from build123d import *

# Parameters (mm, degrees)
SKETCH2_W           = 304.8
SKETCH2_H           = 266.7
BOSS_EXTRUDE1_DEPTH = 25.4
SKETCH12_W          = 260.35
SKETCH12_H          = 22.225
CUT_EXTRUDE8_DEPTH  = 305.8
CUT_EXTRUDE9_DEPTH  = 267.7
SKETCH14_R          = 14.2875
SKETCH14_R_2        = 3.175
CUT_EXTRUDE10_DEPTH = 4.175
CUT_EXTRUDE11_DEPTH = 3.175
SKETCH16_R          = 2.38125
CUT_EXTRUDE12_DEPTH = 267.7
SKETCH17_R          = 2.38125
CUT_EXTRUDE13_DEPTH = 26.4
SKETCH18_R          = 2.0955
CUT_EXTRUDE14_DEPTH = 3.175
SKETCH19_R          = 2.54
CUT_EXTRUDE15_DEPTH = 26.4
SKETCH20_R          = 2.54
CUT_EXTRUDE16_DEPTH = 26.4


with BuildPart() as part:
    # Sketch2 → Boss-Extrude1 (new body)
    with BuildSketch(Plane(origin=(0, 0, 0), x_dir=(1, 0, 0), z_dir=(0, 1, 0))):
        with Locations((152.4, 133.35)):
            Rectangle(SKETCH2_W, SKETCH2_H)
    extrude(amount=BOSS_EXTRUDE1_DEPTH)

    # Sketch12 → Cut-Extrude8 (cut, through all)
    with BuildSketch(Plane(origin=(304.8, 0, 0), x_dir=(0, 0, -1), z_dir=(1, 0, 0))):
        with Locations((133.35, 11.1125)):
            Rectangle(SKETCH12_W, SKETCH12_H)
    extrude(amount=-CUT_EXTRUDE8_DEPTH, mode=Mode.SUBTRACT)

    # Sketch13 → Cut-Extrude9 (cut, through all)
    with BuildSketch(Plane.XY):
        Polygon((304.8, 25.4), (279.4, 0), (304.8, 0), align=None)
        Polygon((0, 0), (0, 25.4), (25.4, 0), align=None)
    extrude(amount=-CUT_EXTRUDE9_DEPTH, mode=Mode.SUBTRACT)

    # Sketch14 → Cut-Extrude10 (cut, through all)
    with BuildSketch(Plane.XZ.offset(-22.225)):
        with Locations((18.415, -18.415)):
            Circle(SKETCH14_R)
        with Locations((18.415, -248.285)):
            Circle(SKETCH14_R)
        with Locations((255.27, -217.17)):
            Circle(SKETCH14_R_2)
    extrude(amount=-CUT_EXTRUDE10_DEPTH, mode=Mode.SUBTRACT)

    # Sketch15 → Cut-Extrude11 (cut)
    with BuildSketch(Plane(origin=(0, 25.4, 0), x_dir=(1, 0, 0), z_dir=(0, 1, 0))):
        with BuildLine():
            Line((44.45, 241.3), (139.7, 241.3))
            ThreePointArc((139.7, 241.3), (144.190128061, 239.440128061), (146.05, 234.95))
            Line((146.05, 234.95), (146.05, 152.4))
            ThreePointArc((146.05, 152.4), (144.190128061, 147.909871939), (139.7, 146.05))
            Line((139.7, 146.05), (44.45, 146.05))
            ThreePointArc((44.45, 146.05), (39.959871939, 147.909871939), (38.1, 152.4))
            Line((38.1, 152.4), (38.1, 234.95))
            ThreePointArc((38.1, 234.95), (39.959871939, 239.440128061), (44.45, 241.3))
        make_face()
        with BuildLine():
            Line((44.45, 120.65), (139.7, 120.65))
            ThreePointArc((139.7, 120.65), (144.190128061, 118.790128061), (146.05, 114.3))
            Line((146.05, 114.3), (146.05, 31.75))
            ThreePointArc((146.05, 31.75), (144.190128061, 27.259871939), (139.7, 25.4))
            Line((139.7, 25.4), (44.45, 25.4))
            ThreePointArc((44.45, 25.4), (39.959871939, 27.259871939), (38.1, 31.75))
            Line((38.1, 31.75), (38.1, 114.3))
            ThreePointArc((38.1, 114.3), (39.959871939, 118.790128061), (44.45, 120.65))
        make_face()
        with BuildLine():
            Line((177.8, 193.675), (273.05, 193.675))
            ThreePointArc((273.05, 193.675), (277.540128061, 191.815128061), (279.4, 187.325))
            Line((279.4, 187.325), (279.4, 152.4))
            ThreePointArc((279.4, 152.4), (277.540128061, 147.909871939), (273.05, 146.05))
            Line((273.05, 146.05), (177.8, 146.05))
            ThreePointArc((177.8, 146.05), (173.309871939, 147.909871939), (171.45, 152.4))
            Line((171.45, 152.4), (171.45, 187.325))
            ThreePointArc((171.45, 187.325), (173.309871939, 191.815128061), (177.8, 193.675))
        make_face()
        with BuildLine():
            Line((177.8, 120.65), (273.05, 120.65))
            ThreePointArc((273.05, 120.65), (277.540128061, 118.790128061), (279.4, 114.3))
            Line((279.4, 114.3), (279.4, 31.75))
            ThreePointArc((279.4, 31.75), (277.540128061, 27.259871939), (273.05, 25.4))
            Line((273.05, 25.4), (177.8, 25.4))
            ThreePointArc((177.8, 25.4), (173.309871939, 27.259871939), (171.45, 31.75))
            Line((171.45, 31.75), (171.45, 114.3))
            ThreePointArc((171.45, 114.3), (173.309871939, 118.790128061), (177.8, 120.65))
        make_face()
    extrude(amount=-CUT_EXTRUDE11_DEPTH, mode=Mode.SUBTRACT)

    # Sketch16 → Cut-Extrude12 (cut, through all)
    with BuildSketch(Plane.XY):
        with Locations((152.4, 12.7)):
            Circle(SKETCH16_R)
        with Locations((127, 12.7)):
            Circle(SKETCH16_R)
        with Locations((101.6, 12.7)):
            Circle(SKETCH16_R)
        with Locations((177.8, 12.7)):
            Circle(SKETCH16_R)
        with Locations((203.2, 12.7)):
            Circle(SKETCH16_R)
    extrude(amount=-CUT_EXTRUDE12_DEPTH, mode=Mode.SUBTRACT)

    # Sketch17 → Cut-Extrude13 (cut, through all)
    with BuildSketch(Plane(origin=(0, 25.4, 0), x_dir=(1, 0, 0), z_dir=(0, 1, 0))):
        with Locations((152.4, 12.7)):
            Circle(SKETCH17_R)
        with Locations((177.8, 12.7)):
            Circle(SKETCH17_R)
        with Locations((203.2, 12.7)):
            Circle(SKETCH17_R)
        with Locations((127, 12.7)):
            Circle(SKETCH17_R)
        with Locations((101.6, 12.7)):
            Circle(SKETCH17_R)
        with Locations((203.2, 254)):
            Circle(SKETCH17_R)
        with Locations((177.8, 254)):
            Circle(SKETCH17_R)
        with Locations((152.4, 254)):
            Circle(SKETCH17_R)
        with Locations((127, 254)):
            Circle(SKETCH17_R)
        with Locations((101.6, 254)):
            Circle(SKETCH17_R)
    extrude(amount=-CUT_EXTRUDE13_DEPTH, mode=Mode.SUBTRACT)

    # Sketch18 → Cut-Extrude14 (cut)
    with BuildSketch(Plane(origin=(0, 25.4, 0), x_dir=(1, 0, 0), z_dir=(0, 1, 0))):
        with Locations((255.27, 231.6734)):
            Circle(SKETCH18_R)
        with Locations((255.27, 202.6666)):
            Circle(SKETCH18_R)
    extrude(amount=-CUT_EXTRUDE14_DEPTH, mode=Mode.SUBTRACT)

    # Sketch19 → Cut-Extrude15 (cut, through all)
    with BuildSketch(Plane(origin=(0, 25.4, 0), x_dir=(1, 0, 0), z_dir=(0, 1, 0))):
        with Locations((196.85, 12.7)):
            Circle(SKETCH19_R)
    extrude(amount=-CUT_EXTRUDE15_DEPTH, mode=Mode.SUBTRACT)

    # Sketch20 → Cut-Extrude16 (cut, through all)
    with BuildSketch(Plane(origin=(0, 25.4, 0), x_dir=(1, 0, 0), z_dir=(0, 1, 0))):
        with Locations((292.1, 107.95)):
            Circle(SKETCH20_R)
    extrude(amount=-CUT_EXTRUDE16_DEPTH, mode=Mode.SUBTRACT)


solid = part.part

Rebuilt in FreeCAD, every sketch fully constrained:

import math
import FreeCAD as App
import Part
import Sketcher

V = App.Vector
Q = App.Units.Quantity


def add_polygon(sketch, points):
    """Adds a closed chain of lines whose ends are joined by coincident constraints."""
    first, n = sketch.GeometryCount, len(points)
    for a, b in zip(points, points[1:] + points[:1]):
        sketch.addGeometry(Part.LineSegment(App.Vector(*a, 0), App.Vector(*b, 0)), False)
    for i in range(n):
        sketch.addConstraint(Sketcher.Constraint("Coincident", first + i, 2, first + (i + 1) % n, 1))

doc = App.newDocument("Part")
body = doc.addObject("PartDesign::Body", "Body")

# Sketch on XZ plane
sketch1 = body.newObject("Sketcher::SketchObject", "Sketch")
sketch1.AttachmentSupport = (doc.getObject("XZ_Plane"), [""])
sketch1.MapMode = "FlatFace"
add_polygon(sketch1, [(0, -267), (0, 0), (305, 0), (305, -267)])  # lines 0-3
sketch1.addConstraint(Sketcher.Constraint("Vertical", 0))
sketch1.addConstraint(Sketcher.Constraint("Horizontal", 1))
sketch1.addConstraint(Sketcher.Constraint("Vertical", 2))
sketch1.addConstraint(Sketcher.Constraint("Horizontal", 3))
sketch1.addConstraint(Sketcher.Constraint("Coincident", 0, 2, -1, 1))
sketch1.addConstraint(Sketcher.Constraint("DistanceX", 1, 1, 1, 2, Q("12 in")))
sketch1.addConstraint(Sketcher.Constraint("DistanceY", 0, 1, 0, 2, Q("10.5 in")))
pad1 = body.newObject("PartDesign::Pad", "Pad")
pad1.Profile = sketch1
pad1.Length = Q("1 in")
pad1.Reversed = True

# Sketch on YZ plane
sketch2 = body.newObject("Sketcher::SketchObject", "Sketch001")
sketch2.AttachmentSupport = (doc.getObject("YZ_Plane"), [""])
sketch2.MapMode = "FlatFace"
sketch2.AttachmentOffset = App.Placement(V(0, 0, 12 * 25.4), App.Rotation())
add_polygon(sketch2, [(22, -3), (0, -3), (0, -264), (22, -264)])  # lines 0-3
sketch2.addConstraint(Sketcher.Constraint("Horizontal", 0))
sketch2.addConstraint(Sketcher.Constraint("Vertical", 1))
sketch2.addConstraint(Sketcher.Constraint("Horizontal", 2))
sketch2.addConstraint(Sketcher.Constraint("Vertical", 3))
sketch2.addConstraint(Sketcher.Constraint("PointOnObject", 0, 2, -2))
sketch2.addConstraint(Sketcher.Constraint("DistanceY", 1, 2, 1, 1, Q("10.25 in")))
sketch2.addConstraint(Sketcher.Constraint("DistanceX", 0, 2, 0, 1, Q("0.875 in")))
sketch2.addConstraint(Sketcher.Constraint("DistanceY", 0, 2, -1, 1, Q("0.125 in")))
pocket1 = body.newObject("PartDesign::Pocket", "Pocket")
pocket1.Profile = sketch2
pocket1.Type = "ThroughAll"

# Sketch on XY plane
sketch3 = body.newObject("Sketcher::SketchObject", "Sketch002")
sketch3.AttachmentSupport = (doc.getObject("XY_Plane"), [""])
sketch3.MapMode = "FlatFace"
add_polygon(sketch3, [(305, 25), (279, 0), (305, 0)])  # lines 0-2
add_polygon(sketch3, [(0, 25), (0, 0), (25, 0)])  # lines 3-5
sketch3.addConstraint(Sketcher.Constraint("Horizontal", 1))
sketch3.addConstraint(Sketcher.Constraint("Vertical", 2))
sketch3.addConstraint(Sketcher.Constraint("Vertical", 3))
sketch3.addConstraint(Sketcher.Constraint("Horizontal", 4))
sketch3.addConstraint(Sketcher.Constraint("Coincident", 3, 2, -1, 1))
sketch3.addConstraint(Sketcher.Constraint("PointOnObject", 0, 2, -1))
sketch3.addConstraint(Sketcher.Constraint("Perpendicular", 0, 5))
sketch3.addConstraint(Sketcher.Constraint("Horizontal", 2, 2, 5, 2))
sketch3.addConstraint(Sketcher.Constraint("Equal", 1, 4))
sketch3.addConstraint(Sketcher.Constraint("DistanceX", 1, 1, 1, 2, Q("1 in")))
sketch3.addConstraint(Sketcher.Constraint("DistanceX", -1, 1, 0, 2, Q("11 in")))
pocket2 = body.newObject("PartDesign::Pocket", "Pocket001")
pocket2.Profile = sketch3
pocket2.Type = "ThroughAll"

# Sketch on XZ plane
sketch4 = body.newObject("Sketcher::SketchObject", "Sketch003")
sketch4.AttachmentSupport = (doc.getObject("XZ_Plane"), [""])
sketch4.MapMode = "FlatFace"
sketch4.AttachmentOffset = App.Placement(V(0, 0, -0.875 * 25.4), App.Rotation())
sketch4.addGeometry(Part.Circle(V(18.4, -18.4, 0), V(0, 0, 1), 14.3), False)
sketch4.addGeometry(Part.Circle(V(18.4, -248.3, 0), V(0, 0, 1), 14.3), False)
sketch4.addGeometry(Part.Circle(V(255.3, -217.2, 0), V(0, 0, 1), 3.2), False)
sketch4.addConstraint(Sketcher.Constraint("Equal", 0, 1))
sketch4.addConstraint(Sketcher.Constraint("Vertical", 0, 3, 1, 3))
sketch4.addConstraint(Sketcher.Constraint("Diameter", 2, Q("0.25 in")))
sketch4.addConstraint(Sketcher.Constraint("Diameter", 0, Q("1.125 in")))
sketch4.addConstraint(Sketcher.Constraint("DistanceX", -1, 1, 2, 3, Q("10.05 in")))
sketch4.addConstraint(Sketcher.Constraint("DistanceY", 2, 3, -1, 1, Q("8.55 in")))
sketch4.addConstraint(Sketcher.Constraint("DistanceY", 1, 3, 0, 3, Q("9.05 in")))
sketch4.addConstraint(Sketcher.Constraint("DistanceX", -1, 1, 0, 3, Q("0.725 in")))
sketch4.addConstraint(Sketcher.Constraint("DistanceY", 0, 3, -1, 1, Q("0.725 in")))
pocket3 = body.newObject("PartDesign::Pocket", "Pocket002")
pocket3.Profile = sketch4
pocket3.Type = "ThroughAll"

# Sketch on XZ plane
sketch5 = body.newObject("Sketcher::SketchObject", "Sketch004")
sketch5.AttachmentSupport = (doc.getObject("XZ_Plane"), [""])
sketch5.MapMode = "FlatFace"
sketch5.AttachmentOffset = App.Placement(V(0, 0, -1 * 25.4), App.Rotation())
sketch5.addGeometry(Part.LineSegment(V(140, -241, 0), V(44, -241, 0)), False)
sketch5.addGeometry(Part.ArcOfCircle(Part.Circle(V(44, -235, 0), V(0, 0, 1), 6), math.radians(180), math.radians(270)), False)
sketch5.addGeometry(Part.LineSegment(V(38, -235, 0), V(38, -152, 0)), False)
sketch5.addGeometry(Part.ArcOfCircle(Part.Circle(V(44, -152, 0), V(0, 0, 1), 6), math.radians(90), math.radians(180)), False)
sketch5.addGeometry(Part.LineSegment(V(44, -146, 0), V(140, -146, 0)), False)
sketch5.addGeometry(Part.ArcOfCircle(Part.Circle(V(140, -152, 0), V(0, 0, 1), 6), math.radians(0), math.radians(90)), False)
sketch5.addGeometry(Part.LineSegment(V(146, -152, 0), V(146, -235, 0)), False)
sketch5.addGeometry(Part.ArcOfCircle(Part.Circle(V(140, -235, 0), V(0, 0, 1), 6), math.radians(-90), math.radians(0)), False)
sketch5.addGeometry(Part.LineSegment(V(140, -121, 0), V(44, -121, 0)), False)
sketch5.addGeometry(Part.ArcOfCircle(Part.Circle(V(44, -114, 0), V(0, 0, 1), 6), math.radians(180), math.radians(270)), False)
sketch5.addGeometry(Part.LineSegment(V(38, -114, 0), V(38, -32, 0)), False)
sketch5.addGeometry(Part.ArcOfCircle(Part.Circle(V(44, -32, 0), V(0, 0, 1), 6), math.radians(90), math.radians(180)), False)
sketch5.addGeometry(Part.LineSegment(V(44, -25, 0), V(140, -25, 0)), False)
sketch5.addGeometry(Part.ArcOfCircle(Part.Circle(V(140, -32, 0), V(0, 0, 1), 6), math.radians(0), math.radians(90)), False)
sketch5.addGeometry(Part.LineSegment(V(146, -32, 0), V(146, -114, 0)), False)
sketch5.addGeometry(Part.ArcOfCircle(Part.Circle(V(140, -114, 0), V(0, 0, 1), 6), math.radians(-90), math.radians(0)), False)
sketch5.addGeometry(Part.LineSegment(V(273, -194, 0), V(178, -194, 0)), False)
sketch5.addGeometry(Part.ArcOfCircle(Part.Circle(V(178, -187, 0), V(0, 0, 1), 6), math.radians(180), math.radians(270)), False)
sketch5.addGeometry(Part.LineSegment(V(171, -187, 0), V(171, -152, 0)), False)
sketch5.addGeometry(Part.ArcOfCircle(Part.Circle(V(178, -152, 0), V(0, 0, 1), 6), math.radians(90), math.radians(180)), False)
sketch5.addGeometry(Part.LineSegment(V(178, -146, 0), V(273, -146, 0)), False)
sketch5.addGeometry(Part.ArcOfCircle(Part.Circle(V(273, -152, 0), V(0, 0, 1), 6), math.radians(0), math.radians(90)), False)
sketch5.addGeometry(Part.LineSegment(V(279, -152, 0), V(279, -187, 0)), False)
sketch5.addGeometry(Part.ArcOfCircle(Part.Circle(V(273, -187, 0), V(0, 0, 1), 6), math.radians(-90), math.radians(0)), False)
sketch5.addGeometry(Part.LineSegment(V(273, -121, 0), V(178, -121, 0)), False)
sketch5.addGeometry(Part.ArcOfCircle(Part.Circle(V(178, -114, 0), V(0, 0, 1), 6), math.radians(180), math.radians(270)), False)
sketch5.addGeometry(Part.LineSegment(V(171, -114, 0), V(171, -32, 0)), False)
sketch5.addGeometry(Part.ArcOfCircle(Part.Circle(V(178, -32, 0), V(0, 0, 1), 6), math.radians(90), math.radians(180)), False)
sketch5.addGeometry(Part.LineSegment(V(178, -25, 0), V(273, -25, 0)), False)
sketch5.addGeometry(Part.ArcOfCircle(Part.Circle(V(273, -32, 0), V(0, 0, 1), 6), math.radians(0), math.radians(90)), False)
sketch5.addGeometry(Part.LineSegment(V(279, -32, 0), V(279, -114, 0)), False)
sketch5.addGeometry(Part.ArcOfCircle(Part.Circle(V(273, -114, 0), V(0, 0, 1), 6), math.radians(-90), math.radians(0)), False)
sketch5.addConstraint(Sketcher.Constraint("Tangent", 0, 2, 1, 2))
sketch5.addConstraint(Sketcher.Constraint("Tangent", 1, 1, 2, 1))
sketch5.addConstraint(Sketcher.Constraint("Tangent", 2, 2, 3, 2))
sketch5.addConstraint(Sketcher.Constraint("Tangent", 3, 1, 4, 1))
sketch5.addConstraint(Sketcher.Constraint("Tangent", 4, 2, 5, 2))
sketch5.addConstraint(Sketcher.Constraint("Tangent", 5, 1, 6, 1))
sketch5.addConstraint(Sketcher.Constraint("Tangent", 6, 2, 7, 2))
sketch5.addConstraint(Sketcher.Constraint("Tangent", 7, 1, 0, 1))
sketch5.addConstraint(Sketcher.Constraint("Tangent", 8, 2, 9, 2))
sketch5.addConstraint(Sketcher.Constraint("Tangent", 9, 1, 10, 1))
sketch5.addConstraint(Sketcher.Constraint("Tangent", 10, 2, 11, 2))
sketch5.addConstraint(Sketcher.Constraint("Tangent", 11, 1, 12, 1))
sketch5.addConstraint(Sketcher.Constraint("Tangent", 12, 2, 13, 2))
sketch5.addConstraint(Sketcher.Constraint("Tangent", 13, 1, 14, 1))
sketch5.addConstraint(Sketcher.Constraint("Tangent", 14, 2, 15, 2))
sketch5.addConstraint(Sketcher.Constraint("Tangent", 15, 1, 8, 1))
sketch5.addConstraint(Sketcher.Constraint("Tangent", 16, 2, 17, 2))
sketch5.addConstraint(Sketcher.Constraint("Tangent", 17, 1, 18, 1))
sketch5.addConstraint(Sketcher.Constraint("Tangent", 18, 2, 19, 2))
sketch5.addConstraint(Sketcher.Constraint("Tangent", 19, 1, 20, 1))
sketch5.addConstraint(Sketcher.Constraint("Tangent", 20, 2, 21, 2))
sketch5.addConstraint(Sketcher.Constraint("Tangent", 21, 1, 22, 1))
sketch5.addConstraint(Sketcher.Constraint("Tangent", 22, 2, 23, 2))
sketch5.addConstraint(Sketcher.Constraint("Tangent", 23, 1, 16, 1))
sketch5.addConstraint(Sketcher.Constraint("Tangent", 24, 2, 25, 2))
sketch5.addConstraint(Sketcher.Constraint("Tangent", 25, 1, 26, 1))
sketch5.addConstraint(Sketcher.Constraint("Tangent", 26, 2, 27, 2))
sketch5.addConstraint(Sketcher.Constraint("Tangent", 27, 1, 28, 1))
sketch5.addConstraint(Sketcher.Constraint("Tangent", 28, 2, 29, 2))
sketch5.addConstraint(Sketcher.Constraint("Tangent", 29, 1, 30, 1))
sketch5.addConstraint(Sketcher.Constraint("Tangent", 30, 2, 31, 2))
sketch5.addConstraint(Sketcher.Constraint("Tangent", 31, 1, 24, 1))
sketch5.addConstraint(Sketcher.Constraint("Horizontal", 0))
sketch5.addConstraint(Sketcher.Constraint("Vertical", 2))
sketch5.addConstraint(Sketcher.Constraint("Horizontal", 4))
sketch5.addConstraint(Sketcher.Constraint("Vertical", 6))
sketch5.addConstraint(Sketcher.Constraint("Horizontal", 8))
sketch5.addConstraint(Sketcher.Constraint("Vertical", 10))
sketch5.addConstraint(Sketcher.Constraint("Horizontal", 12))
sketch5.addConstraint(Sketcher.Constraint("Vertical", 14))
sketch5.addConstraint(Sketcher.Constraint("Horizontal", 16))
sketch5.addConstraint(Sketcher.Constraint("Vertical", 18))
sketch5.addConstraint(Sketcher.Constraint("Horizontal", 20))
sketch5.addConstraint(Sketcher.Constraint("Vertical", 22))
sketch5.addConstraint(Sketcher.Constraint("Horizontal", 24))
sketch5.addConstraint(Sketcher.Constraint("Vertical", 26))
sketch5.addConstraint(Sketcher.Constraint("Horizontal", 28))
sketch5.addConstraint(Sketcher.Constraint("Vertical", 30))
sketch5.addConstraint(Sketcher.Constraint("Equal", 1, 3))
sketch5.addConstraint(Sketcher.Constraint("Equal", 3, 5))
sketch5.addConstraint(Sketcher.Constraint("Equal", 5, 7))
sketch5.addConstraint(Sketcher.Constraint("Equal", 7, 9))
sketch5.addConstraint(Sketcher.Constraint("Equal", 9, 11))
sketch5.addConstraint(Sketcher.Constraint("Equal", 11, 13))
sketch5.addConstraint(Sketcher.Constraint("Equal", 13, 15))
sketch5.addConstraint(Sketcher.Constraint("Equal", 15, 17))
sketch5.addConstraint(Sketcher.Constraint("Equal", 17, 19))
sketch5.addConstraint(Sketcher.Constraint("Equal", 19, 21))
sketch5.addConstraint(Sketcher.Constraint("Equal", 21, 23))
sketch5.addConstraint(Sketcher.Constraint("Equal", 23, 25))
sketch5.addConstraint(Sketcher.Constraint("Equal", 25, 27))
sketch5.addConstraint(Sketcher.Constraint("Equal", 27, 29))
sketch5.addConstraint(Sketcher.Constraint("Equal", 29, 31))
sketch5.addConstraint(Sketcher.Constraint("Horizontal", 5, 3, 19, 3))
sketch5.addConstraint(Sketcher.Constraint("Horizontal", 15, 3, 25, 3))
sketch5.addConstraint(Sketcher.Constraint("Horizontal", 13, 3, 27, 3))
sketch5.addConstraint(Sketcher.Constraint("Vertical", 3, 3, 9, 3))
sketch5.addConstraint(Sketcher.Constraint("Vertical", 7, 3, 13, 3))
sketch5.addConstraint(Sketcher.Constraint("Vertical", 19, 3, 25, 3))
sketch5.addConstraint(Sketcher.Constraint("Vertical", 23, 3, 29, 3))
sketch5.addConstraint(Sketcher.Constraint("Equal", 12, 16))
sketch5.addConstraint(Sketcher.Constraint("Equal", 6, 10))
sketch5.addConstraint(Sketcher.Constraint("Radius", 1, Q("0.25 in")))
sketch5.addConstraint(Sketcher.Constraint("DistanceY", 3, 3, -1, 1, Q("6 in")))
sketch5.addConstraint(Sketcher.Constraint("DistanceX", -1, 1, 17, 3, Q("7 in")))
sketch5.addConstraint(Sketcher.Constraint("DistanceY", 11, 1, -1, 1, Q("1 in")))
sketch5.addConstraint(Sketcher.Constraint("DistanceX", -1, 1, 21, 1, Q("11 in")))
sketch5.addConstraint(Sketcher.Constraint("DistanceY", 1, 3, 11, 3, Q("8 in")))
sketch5.addConstraint(Sketcher.Constraint("DistanceX", 5, 1, 17, 1, Q("1 in")))
sketch5.addConstraint(Sketcher.Constraint("DistanceY", 18, 1, 18, 2, Q("1.375 in")))
pocket4 = body.newObject("PartDesign::Pocket", "Pocket003")
pocket4.Profile = sketch5
pocket4.Length = Q("0.125 in")
pocket4.Reversed = True

# Sketch on XY plane
sketch6 = body.newObject("Sketcher::SketchObject", "Sketch005")
sketch6.AttachmentSupport = (doc.getObject("XY_Plane"), [""])
sketch6.MapMode = "FlatFace"
sketch6.addGeometry(Part.Circle(V(152.4, 12.7, 0), V(0, 0, 1), 2.4), False)
sketch6.addGeometry(Part.Circle(V(127, 12.7, 0), V(0, 0, 1), 2.4), False)
sketch6.addGeometry(Part.Circle(V(101.6, 12.7, 0), V(0, 0, 1), 2.4), False)
sketch6.addGeometry(Part.Circle(V(177.8, 12.7, 0), V(0, 0, 1), 2.4), False)
sketch6.addGeometry(Part.Circle(V(203.2, 12.7, 0), V(0, 0, 1), 2.4), False)
sketch6.addConstraint(Sketcher.Constraint("Equal", 0, 1))
sketch6.addConstraint(Sketcher.Constraint("Equal", 1, 2))
sketch6.addConstraint(Sketcher.Constraint("Equal", 2, 3))
sketch6.addConstraint(Sketcher.Constraint("Equal", 3, 4))
sketch6.addConstraint(Sketcher.Constraint("Horizontal", 0, 3, 1, 3))
sketch6.addConstraint(Sketcher.Constraint("Horizontal", 1, 3, 2, 3))
sketch6.addConstraint(Sketcher.Constraint("Horizontal", 2, 3, 3, 3))
sketch6.addConstraint(Sketcher.Constraint("Horizontal", 3, 3, 4, 3))
sketch6.addConstraint(Sketcher.Constraint("Diameter", 0, Q("0.1875 in")))
sketch6.addConstraint(Sketcher.Constraint("DistanceX", -1, 1, 0, 3, Q("6 in")))
sketch6.addConstraint(Sketcher.Constraint("DistanceX", -1, 1, 1, 3, Q("5 in")))
sketch6.addConstraint(Sketcher.Constraint("DistanceX", -1, 1, 2, 3, Q("4 in")))
sketch6.addConstraint(Sketcher.Constraint("DistanceX", -1, 1, 3, 3, Q("7 in")))
sketch6.addConstraint(Sketcher.Constraint("DistanceX", -1, 1, 4, 3, Q("8 in")))
sketch6.addConstraint(Sketcher.Constraint("DistanceY", -1, 1, 0, 3, Q("0.5 in")))
pocket5 = body.newObject("PartDesign::Pocket", "Pocket004")
pocket5.Profile = sketch6
pocket5.Type = "ThroughAll"

# Sketch on XZ plane
sketch7 = body.newObject("Sketcher::SketchObject", "Sketch006")
sketch7.AttachmentSupport = (doc.getObject("XZ_Plane"), [""])
sketch7.MapMode = "FlatFace"
sketch7.AttachmentOffset = App.Placement(V(0, 0, -1 * 25.4), App.Rotation())
sketch7.addGeometry(Part.Circle(V(152.4, -12.7, 0), V(0, 0, 1), 2.4), False)
sketch7.addGeometry(Part.Circle(V(177.8, -12.7, 0), V(0, 0, 1), 2.4), False)
sketch7.addGeometry(Part.Circle(V(203.2, -12.7, 0), V(0, 0, 1), 2.4), False)
sketch7.addGeometry(Part.Circle(V(127, -12.7, 0), V(0, 0, 1), 2.4), False)
sketch7.addGeometry(Part.Circle(V(101.6, -12.7, 0), V(0, 0, 1), 2.4), False)
sketch7.addGeometry(Part.Circle(V(203.2, -254, 0), V(0, 0, 1), 2.4), False)
sketch7.addGeometry(Part.Circle(V(177.8, -254, 0), V(0, 0, 1), 2.4), False)
sketch7.addGeometry(Part.Circle(V(152.4, -254, 0), V(0, 0, 1), 2.4), False)
sketch7.addGeometry(Part.Circle(V(127, -254, 0), V(0, 0, 1), 2.4), False)
sketch7.addGeometry(Part.Circle(V(101.6, -254, 0), V(0, 0, 1), 2.4), False)
sketch7.addConstraint(Sketcher.Constraint("Equal", 0, 1))
sketch7.addConstraint(Sketcher.Constraint("Equal", 1, 2))
sketch7.addConstraint(Sketcher.Constraint("Equal", 2, 3))
sketch7.addConstraint(Sketcher.Constraint("Equal", 3, 4))
sketch7.addConstraint(Sketcher.Constraint("Equal", 4, 5))
sketch7.addConstraint(Sketcher.Constraint("Equal", 5, 6))
sketch7.addConstraint(Sketcher.Constraint("Equal", 6, 7))
sketch7.addConstraint(Sketcher.Constraint("Equal", 7, 8))
sketch7.addConstraint(Sketcher.Constraint("Equal", 8, 9))
sketch7.addConstraint(Sketcher.Constraint("Horizontal", 0, 3, 1, 3))
sketch7.addConstraint(Sketcher.Constraint("Horizontal", 1, 3, 2, 3))
sketch7.addConstraint(Sketcher.Constraint("Horizontal", 2, 3, 3, 3))
sketch7.addConstraint(Sketcher.Constraint("Horizontal", 3, 3, 4, 3))
sketch7.addConstraint(Sketcher.Constraint("Horizontal", 5, 3, 6, 3))
sketch7.addConstraint(Sketcher.Constraint("Horizontal", 6, 3, 7, 3))
sketch7.addConstraint(Sketcher.Constraint("Horizontal", 7, 3, 8, 3))
sketch7.addConstraint(Sketcher.Constraint("Horizontal", 8, 3, 9, 3))
sketch7.addConstraint(Sketcher.Constraint("Vertical", 2, 3, 5, 3))
sketch7.addConstraint(Sketcher.Constraint("Vertical", 1, 3, 6, 3))
sketch7.addConstraint(Sketcher.Constraint("Vertical", 0, 3, 7, 3))
sketch7.addConstraint(Sketcher.Constraint("Vertical", 3, 3, 8, 3))
sketch7.addConstraint(Sketcher.Constraint("Vertical", 4, 3, 9, 3))
sketch7.addConstraint(Sketcher.Constraint("Diameter", 0, Q("0.1875 in")))
sketch7.addConstraint(Sketcher.Constraint("DistanceX", -1, 1, 0, 3, Q("6 in")))
sketch7.addConstraint(Sketcher.Constraint("DistanceX", -1, 1, 1, 3, Q("7 in")))
sketch7.addConstraint(Sketcher.Constraint("DistanceX", -1, 1, 2, 3, Q("8 in")))
sketch7.addConstraint(Sketcher.Constraint("DistanceX", -1, 1, 3, 3, Q("5 in")))
sketch7.addConstraint(Sketcher.Constraint("DistanceX", -1, 1, 4, 3, Q("4 in")))
sketch7.addConstraint(Sketcher.Constraint("DistanceY", 5, 3, -1, 1, Q("10 in")))
sketch7.addConstraint(Sketcher.Constraint("DistanceY", 0, 3, -1, 1, Q("0.5 in")))
pocket6 = body.newObject("PartDesign::Pocket", "Pocket005")
pocket6.Profile = sketch7
pocket6.Type = "ThroughAll"
pocket6.Reversed = True

# Sketch on XZ plane
sketch8 = body.newObject("Sketcher::SketchObject", "Sketch007")
sketch8.AttachmentSupport = (doc.getObject("XZ_Plane"), [""])
sketch8.MapMode = "FlatFace"
sketch8.AttachmentOffset = App.Placement(V(0, 0, -1 * 25.4), App.Rotation())
sketch8.addGeometry(Part.Circle(V(255.3, -231.7, 0), V(0, 0, 1), 2.1), False)
sketch8.addGeometry(Part.Circle(V(255.3, -202.7, 0), V(0, 0, 1), 2.1), False)
sketch8.addConstraint(Sketcher.Constraint("Equal", 0, 1))
sketch8.addConstraint(Sketcher.Constraint("Vertical", 0, 3, 1, 3))
sketch8.addConstraint(Sketcher.Constraint("Diameter", 0, Q("0.165 in")))
sketch8.addConstraint(Sketcher.Constraint("DistanceX", -1, 1, 0, 3, Q("10.05 in")))
sketch8.addConstraint(Sketcher.Constraint("DistanceY", 0, 3, -1, 1, Q("9.121 in")))
sketch8.addConstraint(Sketcher.Constraint("DistanceY", 1, 3, -1, 1, Q("7.979 in")))
pocket7 = body.newObject("PartDesign::Pocket", "Pocket006")
pocket7.Profile = sketch8
pocket7.Length = Q("0.125 in")
pocket7.Reversed = True

# Sketch on XZ plane
sketch9 = body.newObject("Sketcher::SketchObject", "Sketch008")
sketch9.AttachmentSupport = (doc.getObject("XZ_Plane"), [""])
sketch9.MapMode = "FlatFace"
sketch9.AttachmentOffset = App.Placement(V(0, 0, -1 * 25.4), App.Rotation())
sketch9.addGeometry(Part.Circle(V(196.8, -12.7, 0), V(0, 0, 1), 2.5), False)
sketch9.addConstraint(Sketcher.Constraint("Diameter", 0, Q("0.2 in")))
sketch9.addConstraint(Sketcher.Constraint("DistanceY", 0, 3, -1, 1, Q("0.5 in")))
sketch9.addConstraint(Sketcher.Constraint("DistanceX", -1, 1, 0, 3, Q("7.75 in")))
pocket8 = body.newObject("PartDesign::Pocket", "Pocket007")
pocket8.Profile = sketch9
pocket8.Type = "ThroughAll"
pocket8.Reversed = True

# Sketch on XZ plane
sketch10 = body.newObject("Sketcher::SketchObject", "Sketch009")
sketch10.AttachmentSupport = (doc.getObject("XZ_Plane"), [""])
sketch10.MapMode = "FlatFace"
sketch10.AttachmentOffset = App.Placement(V(0, 0, -1 * 25.4), App.Rotation())
sketch10.addGeometry(Part.Circle(V(292.1, -108, 0), V(0, 0, 1), 2.5), False)
sketch10.addConstraint(Sketcher.Constraint("Diameter", 0, Q("0.2 in")))
sketch10.addConstraint(Sketcher.Constraint("DistanceX", -1, 1, 0, 3, Q("11.5 in")))
sketch10.addConstraint(Sketcher.Constraint("DistanceY", 0, 3, -1, 1, Q("4.25 in")))
pocket9 = body.newObject("PartDesign::Pocket", "Pocket008")
pocket9.Profile = sketch10
pocket9.Type = "ThroughAll"
pocket9.Reversed = True

doc.recompute()
